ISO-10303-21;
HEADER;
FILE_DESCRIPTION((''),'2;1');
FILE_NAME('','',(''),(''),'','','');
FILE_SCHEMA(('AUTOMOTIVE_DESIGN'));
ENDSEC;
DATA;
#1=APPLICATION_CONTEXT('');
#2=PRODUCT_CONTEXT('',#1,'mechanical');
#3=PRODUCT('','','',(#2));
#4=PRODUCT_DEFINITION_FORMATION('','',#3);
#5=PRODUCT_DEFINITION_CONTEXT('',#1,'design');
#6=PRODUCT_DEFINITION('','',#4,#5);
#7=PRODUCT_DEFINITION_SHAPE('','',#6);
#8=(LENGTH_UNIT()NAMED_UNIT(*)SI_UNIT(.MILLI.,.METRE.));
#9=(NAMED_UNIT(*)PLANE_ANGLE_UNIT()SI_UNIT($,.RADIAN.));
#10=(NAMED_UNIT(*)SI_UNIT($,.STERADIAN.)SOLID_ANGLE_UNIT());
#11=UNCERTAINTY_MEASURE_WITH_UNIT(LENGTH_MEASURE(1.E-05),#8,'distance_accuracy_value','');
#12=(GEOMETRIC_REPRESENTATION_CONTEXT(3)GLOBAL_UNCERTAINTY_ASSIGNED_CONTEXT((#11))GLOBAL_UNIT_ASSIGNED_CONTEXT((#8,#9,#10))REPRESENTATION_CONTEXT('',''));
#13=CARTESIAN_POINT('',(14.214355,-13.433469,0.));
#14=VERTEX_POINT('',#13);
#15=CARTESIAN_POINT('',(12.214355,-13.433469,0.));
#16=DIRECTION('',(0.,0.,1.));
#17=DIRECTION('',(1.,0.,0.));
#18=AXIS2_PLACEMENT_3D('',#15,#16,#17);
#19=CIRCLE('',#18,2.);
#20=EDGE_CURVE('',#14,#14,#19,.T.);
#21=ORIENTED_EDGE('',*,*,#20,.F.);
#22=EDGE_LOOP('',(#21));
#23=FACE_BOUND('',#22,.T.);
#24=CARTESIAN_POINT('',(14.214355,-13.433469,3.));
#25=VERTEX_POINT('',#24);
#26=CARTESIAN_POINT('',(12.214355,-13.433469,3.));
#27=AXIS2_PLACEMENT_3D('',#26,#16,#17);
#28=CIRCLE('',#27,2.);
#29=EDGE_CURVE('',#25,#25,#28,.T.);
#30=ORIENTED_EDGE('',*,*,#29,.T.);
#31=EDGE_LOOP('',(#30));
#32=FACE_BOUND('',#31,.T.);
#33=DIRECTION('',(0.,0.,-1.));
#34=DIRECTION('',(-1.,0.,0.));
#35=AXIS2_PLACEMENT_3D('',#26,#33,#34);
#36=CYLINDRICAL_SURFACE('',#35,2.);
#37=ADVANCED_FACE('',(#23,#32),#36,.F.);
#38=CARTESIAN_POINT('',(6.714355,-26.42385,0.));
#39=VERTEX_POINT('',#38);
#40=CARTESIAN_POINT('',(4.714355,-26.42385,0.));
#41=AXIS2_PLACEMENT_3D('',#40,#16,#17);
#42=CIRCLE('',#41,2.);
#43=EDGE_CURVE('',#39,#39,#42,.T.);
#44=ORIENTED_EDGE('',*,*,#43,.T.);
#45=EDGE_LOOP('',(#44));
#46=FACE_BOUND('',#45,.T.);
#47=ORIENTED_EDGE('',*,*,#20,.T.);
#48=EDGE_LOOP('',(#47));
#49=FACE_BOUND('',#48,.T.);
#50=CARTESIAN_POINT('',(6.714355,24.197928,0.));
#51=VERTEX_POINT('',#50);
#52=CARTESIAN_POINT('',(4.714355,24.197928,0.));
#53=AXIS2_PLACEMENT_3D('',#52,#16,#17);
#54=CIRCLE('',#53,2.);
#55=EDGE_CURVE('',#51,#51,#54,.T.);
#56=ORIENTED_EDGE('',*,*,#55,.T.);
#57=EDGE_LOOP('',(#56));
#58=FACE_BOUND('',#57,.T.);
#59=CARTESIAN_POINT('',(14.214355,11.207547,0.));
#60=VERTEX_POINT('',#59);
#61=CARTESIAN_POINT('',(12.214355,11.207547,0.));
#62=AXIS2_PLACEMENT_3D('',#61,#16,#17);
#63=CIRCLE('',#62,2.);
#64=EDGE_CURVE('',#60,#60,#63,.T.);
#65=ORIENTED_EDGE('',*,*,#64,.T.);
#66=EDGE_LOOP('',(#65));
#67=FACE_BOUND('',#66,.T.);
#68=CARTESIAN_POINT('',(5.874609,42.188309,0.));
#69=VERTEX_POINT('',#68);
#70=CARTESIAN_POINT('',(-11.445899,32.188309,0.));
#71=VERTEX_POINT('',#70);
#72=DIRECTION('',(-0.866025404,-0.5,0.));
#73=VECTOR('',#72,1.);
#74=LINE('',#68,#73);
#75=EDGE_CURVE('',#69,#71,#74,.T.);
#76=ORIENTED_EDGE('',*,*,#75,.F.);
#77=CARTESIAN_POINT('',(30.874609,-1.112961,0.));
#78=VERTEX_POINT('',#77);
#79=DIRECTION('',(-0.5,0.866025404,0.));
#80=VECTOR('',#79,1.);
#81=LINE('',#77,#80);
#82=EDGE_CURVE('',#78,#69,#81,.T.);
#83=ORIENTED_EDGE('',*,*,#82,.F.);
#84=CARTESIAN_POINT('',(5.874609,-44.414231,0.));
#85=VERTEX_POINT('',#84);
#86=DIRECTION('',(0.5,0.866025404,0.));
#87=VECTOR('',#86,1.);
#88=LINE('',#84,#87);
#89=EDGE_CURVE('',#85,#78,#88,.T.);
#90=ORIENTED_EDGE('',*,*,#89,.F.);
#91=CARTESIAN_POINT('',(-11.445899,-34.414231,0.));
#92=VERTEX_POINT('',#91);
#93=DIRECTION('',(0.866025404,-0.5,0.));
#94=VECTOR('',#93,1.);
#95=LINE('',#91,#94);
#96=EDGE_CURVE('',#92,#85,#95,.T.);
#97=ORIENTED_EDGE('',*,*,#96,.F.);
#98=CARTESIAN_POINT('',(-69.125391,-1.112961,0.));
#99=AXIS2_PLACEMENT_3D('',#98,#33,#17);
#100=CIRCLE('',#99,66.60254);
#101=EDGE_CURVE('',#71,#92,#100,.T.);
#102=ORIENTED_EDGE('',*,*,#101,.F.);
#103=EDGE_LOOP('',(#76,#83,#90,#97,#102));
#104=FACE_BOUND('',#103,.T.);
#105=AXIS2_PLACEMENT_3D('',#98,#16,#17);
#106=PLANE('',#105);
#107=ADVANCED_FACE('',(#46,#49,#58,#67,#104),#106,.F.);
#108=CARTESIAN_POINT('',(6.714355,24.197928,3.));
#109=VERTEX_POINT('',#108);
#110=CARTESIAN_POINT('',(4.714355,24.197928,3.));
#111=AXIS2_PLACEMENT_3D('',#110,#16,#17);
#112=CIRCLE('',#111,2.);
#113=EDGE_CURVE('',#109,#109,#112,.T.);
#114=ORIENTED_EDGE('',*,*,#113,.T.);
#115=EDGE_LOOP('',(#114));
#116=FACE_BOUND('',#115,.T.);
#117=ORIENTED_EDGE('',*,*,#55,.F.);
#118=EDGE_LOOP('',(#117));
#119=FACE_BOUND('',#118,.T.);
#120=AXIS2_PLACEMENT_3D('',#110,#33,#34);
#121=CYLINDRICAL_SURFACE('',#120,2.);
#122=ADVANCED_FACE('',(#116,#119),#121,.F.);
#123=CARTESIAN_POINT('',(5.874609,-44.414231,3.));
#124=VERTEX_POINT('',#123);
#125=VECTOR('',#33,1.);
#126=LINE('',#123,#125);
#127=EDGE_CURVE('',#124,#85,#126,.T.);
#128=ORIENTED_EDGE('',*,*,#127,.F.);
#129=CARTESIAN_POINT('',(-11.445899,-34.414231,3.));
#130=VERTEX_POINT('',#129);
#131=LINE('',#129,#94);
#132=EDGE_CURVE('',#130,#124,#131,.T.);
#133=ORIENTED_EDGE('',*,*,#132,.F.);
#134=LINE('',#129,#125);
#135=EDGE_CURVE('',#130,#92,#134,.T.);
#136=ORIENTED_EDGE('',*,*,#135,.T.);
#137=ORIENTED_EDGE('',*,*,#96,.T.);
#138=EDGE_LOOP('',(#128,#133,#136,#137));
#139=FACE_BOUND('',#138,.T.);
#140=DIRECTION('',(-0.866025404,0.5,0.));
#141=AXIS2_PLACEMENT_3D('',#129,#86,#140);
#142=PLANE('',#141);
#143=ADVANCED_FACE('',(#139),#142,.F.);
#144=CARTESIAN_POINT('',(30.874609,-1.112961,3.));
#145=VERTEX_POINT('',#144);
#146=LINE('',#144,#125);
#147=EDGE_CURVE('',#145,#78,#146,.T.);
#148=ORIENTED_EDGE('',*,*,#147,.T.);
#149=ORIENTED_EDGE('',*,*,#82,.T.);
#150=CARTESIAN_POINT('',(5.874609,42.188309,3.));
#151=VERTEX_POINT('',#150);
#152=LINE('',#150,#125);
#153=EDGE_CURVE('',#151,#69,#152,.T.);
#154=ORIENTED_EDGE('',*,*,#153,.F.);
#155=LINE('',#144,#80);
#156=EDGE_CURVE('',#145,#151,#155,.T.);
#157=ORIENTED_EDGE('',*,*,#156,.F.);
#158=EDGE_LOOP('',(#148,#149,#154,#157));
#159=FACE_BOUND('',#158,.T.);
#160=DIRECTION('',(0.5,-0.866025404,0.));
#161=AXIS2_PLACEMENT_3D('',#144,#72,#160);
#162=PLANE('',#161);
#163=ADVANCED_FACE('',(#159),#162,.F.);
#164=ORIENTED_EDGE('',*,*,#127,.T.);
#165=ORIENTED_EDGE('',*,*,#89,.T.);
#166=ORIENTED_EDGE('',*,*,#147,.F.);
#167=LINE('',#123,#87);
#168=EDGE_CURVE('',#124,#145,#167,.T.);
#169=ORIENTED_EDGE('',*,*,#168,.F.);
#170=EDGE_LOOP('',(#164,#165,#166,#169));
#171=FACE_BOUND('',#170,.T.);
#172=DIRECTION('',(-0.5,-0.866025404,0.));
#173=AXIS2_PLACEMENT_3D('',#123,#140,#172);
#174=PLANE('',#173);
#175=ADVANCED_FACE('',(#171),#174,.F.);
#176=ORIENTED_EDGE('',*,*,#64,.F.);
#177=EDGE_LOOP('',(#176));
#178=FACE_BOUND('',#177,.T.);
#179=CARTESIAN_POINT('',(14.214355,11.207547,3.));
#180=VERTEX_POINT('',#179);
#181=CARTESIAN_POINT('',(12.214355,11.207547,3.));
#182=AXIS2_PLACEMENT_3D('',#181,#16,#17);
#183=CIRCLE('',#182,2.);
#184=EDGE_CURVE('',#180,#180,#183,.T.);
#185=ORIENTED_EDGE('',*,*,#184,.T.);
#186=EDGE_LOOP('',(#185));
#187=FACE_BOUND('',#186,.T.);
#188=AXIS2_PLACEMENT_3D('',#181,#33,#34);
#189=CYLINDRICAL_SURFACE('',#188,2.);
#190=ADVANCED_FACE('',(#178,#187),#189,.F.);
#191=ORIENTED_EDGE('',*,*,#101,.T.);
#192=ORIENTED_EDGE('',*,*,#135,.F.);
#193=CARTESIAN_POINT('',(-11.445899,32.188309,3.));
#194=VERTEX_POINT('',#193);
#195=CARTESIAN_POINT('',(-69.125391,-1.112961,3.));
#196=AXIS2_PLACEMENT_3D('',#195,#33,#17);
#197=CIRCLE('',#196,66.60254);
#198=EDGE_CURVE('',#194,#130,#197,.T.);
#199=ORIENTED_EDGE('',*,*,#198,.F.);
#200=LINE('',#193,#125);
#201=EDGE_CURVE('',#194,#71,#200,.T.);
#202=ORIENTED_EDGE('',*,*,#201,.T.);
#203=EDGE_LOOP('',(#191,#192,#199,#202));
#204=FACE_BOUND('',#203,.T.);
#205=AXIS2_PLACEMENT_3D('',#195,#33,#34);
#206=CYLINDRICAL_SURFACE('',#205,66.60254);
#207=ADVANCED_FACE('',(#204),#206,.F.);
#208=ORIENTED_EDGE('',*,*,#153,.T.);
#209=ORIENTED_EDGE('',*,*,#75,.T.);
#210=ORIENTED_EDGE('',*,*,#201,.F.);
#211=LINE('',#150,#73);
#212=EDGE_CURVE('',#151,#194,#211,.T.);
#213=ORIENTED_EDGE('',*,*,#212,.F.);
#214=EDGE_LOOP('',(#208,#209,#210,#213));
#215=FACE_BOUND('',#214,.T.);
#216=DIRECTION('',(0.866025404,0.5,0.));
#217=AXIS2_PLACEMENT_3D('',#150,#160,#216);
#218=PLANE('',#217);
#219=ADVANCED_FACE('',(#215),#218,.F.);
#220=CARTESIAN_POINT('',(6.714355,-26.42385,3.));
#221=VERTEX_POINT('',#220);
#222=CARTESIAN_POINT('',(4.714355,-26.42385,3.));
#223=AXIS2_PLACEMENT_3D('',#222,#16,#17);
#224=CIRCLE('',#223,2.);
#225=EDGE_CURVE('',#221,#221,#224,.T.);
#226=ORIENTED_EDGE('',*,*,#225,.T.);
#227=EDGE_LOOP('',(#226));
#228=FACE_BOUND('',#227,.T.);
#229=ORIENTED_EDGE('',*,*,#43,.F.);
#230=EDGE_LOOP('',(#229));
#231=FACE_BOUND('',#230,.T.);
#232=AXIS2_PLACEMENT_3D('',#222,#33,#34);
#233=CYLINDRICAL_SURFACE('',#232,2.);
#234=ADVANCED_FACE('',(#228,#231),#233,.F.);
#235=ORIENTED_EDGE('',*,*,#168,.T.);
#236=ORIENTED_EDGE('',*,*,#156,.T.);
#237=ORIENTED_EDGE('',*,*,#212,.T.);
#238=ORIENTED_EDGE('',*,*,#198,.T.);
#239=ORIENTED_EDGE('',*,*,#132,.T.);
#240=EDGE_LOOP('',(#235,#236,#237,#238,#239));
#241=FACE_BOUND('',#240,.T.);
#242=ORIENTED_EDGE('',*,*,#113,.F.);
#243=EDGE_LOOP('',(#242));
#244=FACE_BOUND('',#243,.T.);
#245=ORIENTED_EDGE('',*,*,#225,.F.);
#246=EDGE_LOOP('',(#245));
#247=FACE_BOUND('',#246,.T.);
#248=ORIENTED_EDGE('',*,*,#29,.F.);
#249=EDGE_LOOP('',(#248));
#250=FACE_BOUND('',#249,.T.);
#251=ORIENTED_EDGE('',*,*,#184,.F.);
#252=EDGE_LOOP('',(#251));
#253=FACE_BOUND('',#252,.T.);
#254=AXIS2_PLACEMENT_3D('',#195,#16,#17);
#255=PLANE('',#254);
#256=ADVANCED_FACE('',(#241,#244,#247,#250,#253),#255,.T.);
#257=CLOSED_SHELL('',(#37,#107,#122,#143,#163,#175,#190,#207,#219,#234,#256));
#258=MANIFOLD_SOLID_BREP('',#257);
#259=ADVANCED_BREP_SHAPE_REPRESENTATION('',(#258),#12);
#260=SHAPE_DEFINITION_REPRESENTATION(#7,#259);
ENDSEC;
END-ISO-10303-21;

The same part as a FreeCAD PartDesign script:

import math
import FreeCAD as App
import Part
import Sketcher
Q = App.Units.Quantity

doc = App.newDocument("Part")
body = doc.addObject("PartDesign::Body", "Body")

sketch1 = doc.addObject("Sketcher::SketchObject", "Sketch")
body.addObject(sketch1)
sketch1.AttachmentSupport = (doc.XY_Plane, [""])
sketch1.MapMode = "FlatFace"
sketch1.addGeometry([
    Part.LineSegment(App.Vector(30.874609, -1.112961, 0), App.Vector(5.874609, 42.188309, 0)),
    Part.LineSegment(App.Vector(5.874609, 42.188309, 0), App.Vector(-11.445899, 32.188309, 0)),
    Part.ArcOfCircle(Part.Circle(App.Vector(-69.125391, -1.112961, 0), App.Vector(0, 0, 1), 66.60254), math.radians(-30), math.radians(30)),
    Part.LineSegment(App.Vector(-11.445899, -34.414231, 0), App.Vector(5.874609, -44.414231, 0)),
    Part.LineSegment(App.Vector(5.874609, -44.414231, 0), App.Vector(30.874609, -1.112961, 0)),
    Part.Circle(App.Vector(4.714355, -26.42385, 0), App.Vector(0, 0, 1), 2),
    Part.Circle(App.Vector(12.214355, -13.433469, 0), App.Vector(0, 0, 1), 2),
    Part.Circle(App.Vector(4.714355, 24.197928, 0), App.Vector(0, 0, 1), 2),
    Part.Circle(App.Vector(12.214355, 11.207547, 0), App.Vector(0, 0, 1), 2),
], False)
sketch1.addConstraint([
    Sketcher.Constraint("Coincident", 0, 2, 1, 1),
    Sketcher.Constraint("Coincident", 1, 2, 2, 2),
    Sketcher.Constraint("Coincident", 2, 1, 3, 1),
    Sketcher.Constraint("Coincident", 3, 2, 4, 1),
    Sketcher.Constraint("Coincident", 4, 2, 0, 1),
    Sketcher.Constraint("Equal", 5, 6),
    Sketcher.Constraint("Equal", 6, 7),
    Sketcher.Constraint("Equal", 7, 8),
    Sketcher.Constraint("Perpendicular", 0, 1),
    Sketcher.Constraint("Perpendicular", 3, 4),
    Sketcher.Constraint("Horizontal", 2, 3, 4, 2),
    Sketcher.Constraint("Vertical", 5, 3, 7, 3),
    Sketcher.Constraint("Vertical", 6, 3, 8, 3),
    Sketcher.Constraint("Vertical", 1, 2, 2, 1),
    Sketcher.Constraint("Vertical", 0, 2, 3, 2),
    Sketcher.Constraint("Diameter", 5, 4.0),
    Sketcher.Constraint("Angle", 0, Q("120 deg")),
    Sketcher.Constraint("Distance", 0, 50.0),
    Sketcher.Constraint("Distance", 1, 20.0),
    Sketcher.Constraint("DistanceX", 2, 3, 0, 2, 75.0),
    Sketcher.Constraint("DistanceX", 5, 3, 6, 3, 7.5),
    Sketcher.Constraint("DistanceX", 1, 2, -1, 1, 11.445899),
    Sketcher.Constraint("DistanceY", 2, 3, -1, 1, 1.112961),
    Sketcher.Constraint("DistanceY", 5, 3, -1, 1, 26.42385),
    Sketcher.Constraint("DistanceY", 6, 3, -1, 1, 13.433469),
    Sketcher.Constraint("DistanceY", 5, 3, 7, 3, 50.621778),
    Sketcher.Constraint("DistanceY", 8, 3, 7, 3, 12.990381),
    Sketcher.Constraint("DistanceX", -1, 1, 5, 3, 4.714355),
])
pad1 = doc.addObject("PartDesign::Pad", "Pad")
body.addObject(pad1)
pad1.Profile = sketch1
pad1.Length = 3

doc.recompute()
